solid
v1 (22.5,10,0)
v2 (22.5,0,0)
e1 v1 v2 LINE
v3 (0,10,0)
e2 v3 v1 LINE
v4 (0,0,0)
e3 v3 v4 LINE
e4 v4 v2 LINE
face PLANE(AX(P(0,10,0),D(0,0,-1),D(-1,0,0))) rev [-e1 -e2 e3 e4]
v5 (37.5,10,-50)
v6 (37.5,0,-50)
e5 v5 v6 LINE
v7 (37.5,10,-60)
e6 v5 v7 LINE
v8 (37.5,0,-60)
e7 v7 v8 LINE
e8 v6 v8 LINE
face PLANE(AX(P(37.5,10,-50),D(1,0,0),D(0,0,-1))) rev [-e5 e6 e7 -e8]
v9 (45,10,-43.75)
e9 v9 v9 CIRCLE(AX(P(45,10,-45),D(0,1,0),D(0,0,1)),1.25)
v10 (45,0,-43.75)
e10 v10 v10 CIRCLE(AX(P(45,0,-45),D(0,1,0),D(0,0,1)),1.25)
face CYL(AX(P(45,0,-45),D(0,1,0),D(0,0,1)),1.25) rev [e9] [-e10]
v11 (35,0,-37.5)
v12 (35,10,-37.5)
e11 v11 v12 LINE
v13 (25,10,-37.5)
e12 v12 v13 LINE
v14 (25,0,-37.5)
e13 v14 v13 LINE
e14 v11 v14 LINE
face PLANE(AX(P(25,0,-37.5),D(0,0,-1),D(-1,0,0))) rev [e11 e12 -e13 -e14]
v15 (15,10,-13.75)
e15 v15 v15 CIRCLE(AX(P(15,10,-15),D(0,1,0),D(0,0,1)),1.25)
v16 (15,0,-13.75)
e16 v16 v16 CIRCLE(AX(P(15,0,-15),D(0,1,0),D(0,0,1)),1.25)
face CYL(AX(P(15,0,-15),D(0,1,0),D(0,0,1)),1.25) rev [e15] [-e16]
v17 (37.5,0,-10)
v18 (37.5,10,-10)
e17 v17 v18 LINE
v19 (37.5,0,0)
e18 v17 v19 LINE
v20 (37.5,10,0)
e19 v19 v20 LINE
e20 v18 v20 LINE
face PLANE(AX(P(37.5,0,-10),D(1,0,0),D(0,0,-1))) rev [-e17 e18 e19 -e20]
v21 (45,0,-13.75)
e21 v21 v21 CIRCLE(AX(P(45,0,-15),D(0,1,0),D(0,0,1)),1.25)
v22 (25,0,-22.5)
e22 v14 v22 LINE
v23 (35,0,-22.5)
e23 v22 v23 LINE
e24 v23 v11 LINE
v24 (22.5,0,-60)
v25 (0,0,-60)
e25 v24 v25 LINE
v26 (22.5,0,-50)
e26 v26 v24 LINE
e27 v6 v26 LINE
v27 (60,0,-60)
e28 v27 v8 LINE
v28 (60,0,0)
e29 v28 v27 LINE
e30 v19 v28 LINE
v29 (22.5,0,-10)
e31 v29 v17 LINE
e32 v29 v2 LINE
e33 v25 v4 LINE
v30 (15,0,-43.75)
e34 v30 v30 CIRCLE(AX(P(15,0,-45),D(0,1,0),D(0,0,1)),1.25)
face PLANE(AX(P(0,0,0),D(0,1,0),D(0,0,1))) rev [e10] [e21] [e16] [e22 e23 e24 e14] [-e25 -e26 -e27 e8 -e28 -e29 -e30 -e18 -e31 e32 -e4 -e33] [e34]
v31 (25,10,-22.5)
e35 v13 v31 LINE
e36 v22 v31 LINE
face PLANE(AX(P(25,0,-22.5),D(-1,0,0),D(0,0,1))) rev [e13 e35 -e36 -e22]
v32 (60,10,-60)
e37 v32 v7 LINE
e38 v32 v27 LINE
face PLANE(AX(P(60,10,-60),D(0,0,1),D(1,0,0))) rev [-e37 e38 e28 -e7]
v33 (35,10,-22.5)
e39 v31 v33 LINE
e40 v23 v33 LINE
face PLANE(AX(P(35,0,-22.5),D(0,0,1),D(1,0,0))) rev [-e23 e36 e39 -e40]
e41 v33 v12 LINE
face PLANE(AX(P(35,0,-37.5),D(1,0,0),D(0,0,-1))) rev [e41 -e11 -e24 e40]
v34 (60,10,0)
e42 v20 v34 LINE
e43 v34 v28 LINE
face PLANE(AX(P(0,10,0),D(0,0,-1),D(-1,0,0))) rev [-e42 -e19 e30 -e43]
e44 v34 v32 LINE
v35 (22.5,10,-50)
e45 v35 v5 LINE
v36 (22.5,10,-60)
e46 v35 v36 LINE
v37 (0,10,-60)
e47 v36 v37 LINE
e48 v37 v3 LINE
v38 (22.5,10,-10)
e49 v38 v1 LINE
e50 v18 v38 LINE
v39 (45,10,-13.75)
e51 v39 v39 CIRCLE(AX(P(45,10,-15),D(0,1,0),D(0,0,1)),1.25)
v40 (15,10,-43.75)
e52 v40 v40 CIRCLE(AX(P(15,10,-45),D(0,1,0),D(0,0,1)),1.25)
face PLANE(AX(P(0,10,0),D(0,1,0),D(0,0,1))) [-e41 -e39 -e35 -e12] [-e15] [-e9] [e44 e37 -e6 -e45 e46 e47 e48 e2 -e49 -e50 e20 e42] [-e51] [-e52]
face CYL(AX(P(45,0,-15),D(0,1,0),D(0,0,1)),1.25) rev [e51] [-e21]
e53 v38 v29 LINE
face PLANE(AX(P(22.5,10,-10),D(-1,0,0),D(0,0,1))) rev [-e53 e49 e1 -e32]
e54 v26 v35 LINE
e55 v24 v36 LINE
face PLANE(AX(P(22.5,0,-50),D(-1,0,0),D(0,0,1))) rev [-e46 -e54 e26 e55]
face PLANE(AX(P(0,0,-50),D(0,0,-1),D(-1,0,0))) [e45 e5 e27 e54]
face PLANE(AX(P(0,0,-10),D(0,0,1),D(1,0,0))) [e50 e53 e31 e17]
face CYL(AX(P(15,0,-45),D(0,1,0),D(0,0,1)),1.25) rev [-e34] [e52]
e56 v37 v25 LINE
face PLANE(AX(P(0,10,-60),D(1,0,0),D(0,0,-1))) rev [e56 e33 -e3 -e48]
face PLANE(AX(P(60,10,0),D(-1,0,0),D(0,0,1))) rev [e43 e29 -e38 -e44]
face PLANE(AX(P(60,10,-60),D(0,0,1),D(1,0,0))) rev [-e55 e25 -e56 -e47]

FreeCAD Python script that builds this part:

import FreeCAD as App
import Part
import Sketcher
Q = App.Units.Quantity


def add_polygon(sketch, points):
    """Adds a closed chain of lines whose ends are joined by coincident constraints."""
    first, n = sketch.GeometryCount, len(points)
    for a, b in zip(points, points[1:] + points[:1]):
        sketch.addGeometry(Part.LineSegment(App.Vector(*a, 0), App.Vector(*b, 0)), False)
    for i in range(n):
        sketch.addConstraint(Sketcher.Constraint("Coincident", first + i, 2, first + (i + 1) % n, 1))

doc = App.newDocument("Part")
body = doc.addObject("PartDesign::Body", "Body")

# Sketch on XZ plane
sketch1 = body.newObject("Sketcher::SketchObject", "Sketch")
sketch1.AttachmentSupport = (doc.getObject("XZ_Plane"), [""])
sketch1.MapMode = "FlatFace"
add_polygon(sketch1, [(0, -60), (0, 0), (60, 0), (60, -60)])  # lines 0-3
sketch1.addConstraint(Sketcher.Constraint("Vertical", 0))
sketch1.addConstraint(Sketcher.Constraint("Horizontal", 1))
sketch1.addConstraint(Sketcher.Constraint("Vertical", 2))
sketch1.addConstraint(Sketcher.Constraint("Horizontal", 3))
sketch1.addConstraint(Sketcher.Constraint("Coincident", 0, 2, -1, 1))
sketch1.addConstraint(Sketcher.Constraint("Equal", 3, 0))
sketch1.addConstraint(Sketcher.Constraint("DistanceX", 1, 1, 1, 2, Q("60 mm")))
pad1 = body.newObject("PartDesign::Pad", "Pad")
pad1.Profile = sketch1
pad1.Length = 10
pad1.Reversed = True

# Sketch on XY plane
sketch2 = body.newObject("Sketcher::SketchObject", "Sketch001")
sketch2.AttachmentSupport = (doc.getObject("XY_Plane"), [""])
sketch2.MapMode = "FlatFace"
add_polygon(sketch2, [(22, 10), (22, 0), (38, 0), (38, 10)])  # lines 0-3
sketch2.addConstraint(Sketcher.Constraint("Vertical", 0))
sketch2.addConstraint(Sketcher.Constraint("Horizontal", 1))
sketch2.addConstraint(Sketcher.Constraint("Vertical", 2))
sketch2.addConstraint(Sketcher.Constraint("Horizontal", 3))
sketch2.addConstraint(Sketcher.Constraint("PointOnObject", 0, 2, -1))
sketch2.addConstraint(Sketcher.Constraint("DistanceX", 1, 1, 1, 2, Q("15 mm")))
sketch2.addConstraint(Sketcher.Constraint("DistanceY", 0, 2, 0, 1, Q("10 mm")))
sketch2.addConstraint(Sketcher.Constraint("DistanceX", -1, 1, 0, 2, Q("22.5 mm")))
pocket1 = body.newObject("PartDesign::Pocket", "Pocket")
pocket1.Profile = sketch2
pocket1.Length = 10

# Sketch on XY plane
sketch3 = body.newObject("Sketcher::SketchObject", "Sketch002")
sketch3.AttachmentSupport = (doc.getObject("XY_Plane"), [""])
sketch3.MapMode = "FlatFace"
sketch3.AttachmentOffset = App.Placement(App.Vector(0, 0, -60), App.Rotation())
add_polygon(sketch3, [(38, 10), (38, 0), (22, 0), (22, 10)])  # lines 0-3
sketch3.addConstraint(Sketcher.Constraint("Vertical", 0))
sketch3.addConstraint(Sketcher.Constraint("Horizontal", 1))
sketch3.addConstraint(Sketcher.Constraint("Vertical", 2))
sketch3.addConstraint(Sketcher.Constraint("Horizontal", 3))
sketch3.addConstraint(Sketcher.Constraint("PointOnObject", 0, 2, -1))
sketch3.addConstraint(Sketcher.Constraint("DistanceX", 1, 2, 1, 1, Q("15 mm")))
sketch3.addConstraint(Sketcher.Constraint("DistanceY", 0, 2, 0, 1, Q("10 mm")))
sketch3.addConstraint(Sketcher.Constraint("DistanceX", -1, 1, 0, 2, Q("37.5 mm")))
pocket2 = body.newObject("PartDesign::Pocket", "Pocket001")
pocket2.Profile = sketch3
pocket2.Length = 10
pocket2.Reversed = True

# Sketch on XZ plane
sketch4 = body.newObject("Sketcher::SketchObject", "Sketch003")
sketch4.AttachmentSupport = (doc.getObject("XZ_Plane"), [""])
sketch4.MapMode = "FlatFace"
sketch4.AttachmentOffset = App.Placement(App.Vector(0, 0, -10), App.Rotation())
add_polygon(sketch4, [(25, -38), (25, -22), (35, -22), (35, -38)])  # lines 0-3
sketch4.addConstraint(Sketcher.Constraint("Vertical", 0))
sketch4.addConstraint(Sketcher.Constraint("Horizontal", 1))
sketch4.addConstraint(Sketcher.Constraint("Vertical", 2))
sketch4.addConstraint(Sketcher.Constraint("Horizontal", 3))
sketch4.addConstraint(Sketcher.Constraint("DistanceX", 1, 1, 1, 2, Q("10 mm")))
sketch4.addConstraint(Sketcher.Constraint("DistanceY", 0, 1, 0, 2, Q("15 mm")))
sketch4.addConstraint(Sketcher.Constraint("DistanceX", -1, 1, 0, 2, Q("25 mm")))
sketch4.addConstraint(Sketcher.Constraint("DistanceY", 0, 2, -1, 1, Q("22.5 mm")))
pocket3 = body.newObject("PartDesign::Pocket", "Pocket002")
pocket3.Profile = sketch4
pocket3.Type = "ThroughAll"
pocket3.Reversed = True

# Sketch on XZ plane
sketch5 = body.newObject("Sketcher::SketchObject", "Sketch004")
sketch5.AttachmentSupport = (doc.getObject("XZ_Plane"), [""])
sketch5.MapMode = "FlatFace"
sketch5.AttachmentOffset = App.Placement(App.Vector(0, 0, -10), App.Rotation())
sketch5.addGeometry(Part.Circle(App.Vector(45, -45, 0), App.Vector(0, 0, 1), 1.2), False)
sketch5.addGeometry(Part.Circle(App.Vector(15, -45, 0), App.Vector(0, 0, 1), 1.2), False)
sketch5.addGeometry(Part.Circle(App.Vector(45, -15, 0), App.Vector(0, 0, 1), 1.2), False)
sketch5.addGeometry(Part.Circle(App.Vector(15, -15, 0), App.Vector(0, 0, 1), 1.2), False)
sketch5.addConstraint(Sketcher.Constraint("Equal", 0, 1))
sketch5.addConstraint(Sketcher.Constraint("Equal", 1, 2))
sketch5.addConstraint(Sketcher.Constraint("Equal", 2, 3))
sketch5.addConstraint(Sketcher.Constraint("Horizontal", 0, 3, 1, 3))
sketch5.addConstraint(Sketcher.Constraint("Horizontal", 2, 3, 3, 3))
sketch5.addConstraint(Sketcher.Constraint("Vertical", 0, 3, 2, 3))
sketch5.addConstraint(Sketcher.Constraint("Vertical", 1, 3, 3, 3))
sketch5.addConstraint(Sketcher.Constraint("Diameter", 0, Q("2.5 mm")))
sketch5.addConstraint(Sketcher.Constraint("DistanceX", -1, 1, 0, 3, Q("45 mm")))
sketch5.addConstraint(Sketcher.Constraint("DistanceY", 0, 3, -1, 1, Q("45 mm")))
sketch5.addConstraint(Sketcher.Constraint("DistanceX", -1, 1, 1, 3, Q("15 mm")))
sketch5.addConstraint(Sketcher.Constraint("DistanceY", 2, 3, -1, 1, Q("15 mm")))
pocket4 = body.newObject("PartDesign::Pocket", "Pocket003")
pocket4.Profile = sketch5
pocket4.Type = "ThroughAll"
pocket4.Reversed = True

doc.recompute()
